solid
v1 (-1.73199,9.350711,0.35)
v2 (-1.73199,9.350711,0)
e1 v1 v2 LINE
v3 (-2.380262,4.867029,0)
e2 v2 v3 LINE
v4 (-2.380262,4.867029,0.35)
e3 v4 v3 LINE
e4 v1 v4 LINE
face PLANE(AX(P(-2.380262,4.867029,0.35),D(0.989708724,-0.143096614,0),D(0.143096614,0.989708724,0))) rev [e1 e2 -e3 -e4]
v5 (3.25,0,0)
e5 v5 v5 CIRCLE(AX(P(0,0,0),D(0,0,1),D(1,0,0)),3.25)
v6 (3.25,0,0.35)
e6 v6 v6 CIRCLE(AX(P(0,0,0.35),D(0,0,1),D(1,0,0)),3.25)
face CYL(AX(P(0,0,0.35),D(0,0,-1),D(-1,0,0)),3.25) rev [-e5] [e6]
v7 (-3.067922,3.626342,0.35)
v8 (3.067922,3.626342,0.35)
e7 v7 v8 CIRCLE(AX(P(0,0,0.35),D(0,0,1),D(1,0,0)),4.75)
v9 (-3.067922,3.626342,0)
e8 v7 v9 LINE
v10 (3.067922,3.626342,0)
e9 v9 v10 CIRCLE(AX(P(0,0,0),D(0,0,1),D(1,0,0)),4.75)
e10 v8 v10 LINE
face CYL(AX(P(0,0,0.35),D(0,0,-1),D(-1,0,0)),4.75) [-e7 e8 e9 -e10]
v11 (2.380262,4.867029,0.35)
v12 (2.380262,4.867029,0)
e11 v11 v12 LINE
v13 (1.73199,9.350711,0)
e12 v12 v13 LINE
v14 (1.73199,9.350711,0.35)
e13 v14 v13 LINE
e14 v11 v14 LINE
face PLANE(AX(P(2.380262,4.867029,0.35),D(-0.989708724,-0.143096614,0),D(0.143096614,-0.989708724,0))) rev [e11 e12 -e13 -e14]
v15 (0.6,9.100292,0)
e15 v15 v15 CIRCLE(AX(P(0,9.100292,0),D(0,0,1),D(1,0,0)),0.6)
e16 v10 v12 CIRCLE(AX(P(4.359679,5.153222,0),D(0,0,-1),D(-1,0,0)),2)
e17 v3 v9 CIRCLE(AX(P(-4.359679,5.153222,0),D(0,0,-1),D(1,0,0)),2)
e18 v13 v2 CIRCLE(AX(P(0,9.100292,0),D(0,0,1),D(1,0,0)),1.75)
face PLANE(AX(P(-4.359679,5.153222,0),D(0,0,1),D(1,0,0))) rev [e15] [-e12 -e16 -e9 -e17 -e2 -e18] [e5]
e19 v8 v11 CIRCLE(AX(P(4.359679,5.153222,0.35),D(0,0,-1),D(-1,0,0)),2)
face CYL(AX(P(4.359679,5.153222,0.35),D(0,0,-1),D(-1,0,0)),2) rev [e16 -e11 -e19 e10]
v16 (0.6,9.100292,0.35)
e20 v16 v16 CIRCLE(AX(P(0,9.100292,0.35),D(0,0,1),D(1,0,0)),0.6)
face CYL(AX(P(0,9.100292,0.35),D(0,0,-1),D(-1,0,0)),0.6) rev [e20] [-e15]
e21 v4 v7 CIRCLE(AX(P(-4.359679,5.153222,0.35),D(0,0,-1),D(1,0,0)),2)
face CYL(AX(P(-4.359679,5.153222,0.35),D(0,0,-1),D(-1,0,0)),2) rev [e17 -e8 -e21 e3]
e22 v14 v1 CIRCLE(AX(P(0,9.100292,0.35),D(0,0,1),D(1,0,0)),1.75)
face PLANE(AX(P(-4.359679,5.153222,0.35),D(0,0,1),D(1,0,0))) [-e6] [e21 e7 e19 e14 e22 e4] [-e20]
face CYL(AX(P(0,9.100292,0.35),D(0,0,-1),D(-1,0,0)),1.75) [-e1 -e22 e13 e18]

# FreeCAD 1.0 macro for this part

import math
import FreeCAD as App
import Part
import Sketcher
from FreeCAD import Vector
Q = App.Units.Quantity

doc = App.newDocument("Part")
params = doc.addObject("Spreadsheet::Sheet", "Params")
for row, (alias, value) in enumerate([
    ("sketch1_radius", "2 mm"),
    ("sketch1_diameter", "6.5 mm"),
    ("sketch1_diameter2", "1.2 mm"),
    ("sketch1_radius2", "1.75 mm"),
    ("sketch1_radius3", "4.75 mm"),
    ("pad1_length", "0.35 mm"),
], start=1):
    params.set(f"A{row}", alias)
    params.set(f"B{row}", "=" + value)
    params.setAlias(f"B{row}", alias)

body = doc.addObject("PartDesign::Body", "Body")

# Sketch on XY plane
sketch1 = body.newObject("Sketcher::SketchObject", "Sketch")
sketch1.AttachmentSupport = (doc.getObject("XY_Plane"), [""])
sketch1.MapMode = "FlatFace"
sketch1.addGeometry([
    Part.LineSegment(Vector(2.380262, 4.867029, 0), Vector(1.73199, 9.350711, 0)),  # 0
    Part.ArcOfCircle(Part.Circle(Vector(0, 9.100292, 0), Vector(0, 0, 1), 1.75), math.radians(8.227074), math.radians(171.772926)),  # 1
    Part.LineSegment(Vector(-1.73199, 9.350711, 0), Vector(-2.380262, 4.867029, 0)),  # 2
    Part.ArcOfCircle(Part.Circle(Vector(-4.359679, 5.153222, 0), Vector(0, 0, 1), 2), math.radians(-49.768436), math.radians(-8.227074)),  # 3
    Part.ArcOfCircle(Part.Circle(Vector(0, 0, 0), Vector(0, 0, 1), 4.75), math.radians(130.231564), math.radians(409.768436)),  # 4
    Part.ArcOfCircle(Part.Circle(Vector(4.359679, 5.153222, 0), Vector(0, 0, 1), 2), math.radians(-171.772926), math.radians(-130.231564)),  # 5
    Part.Circle(Vector(0, 0, 0), Vector(0, 0, 1), 3.25),  # 6
    Part.Circle(Vector(0, 9.100292, 0), Vector(0, 0, 1), 0.6),  # 7
], False)
sketch1.addConstraint([
    Sketcher.Constraint("Tangent", 0, 2, 1, 1),
    Sketcher.Constraint("Tangent", 1, 2, 2, 1),
    Sketcher.Constraint("Tangent", 2, 2, 3, 2),
    Sketcher.Constraint("Tangent", 3, 1, 4, 1),
    Sketcher.Constraint("Tangent", 4, 2, 5, 2),
    Sketcher.Constraint("Tangent", 5, 1, 0, 1),
    Sketcher.Constraint("Coincident", 4, 3, -1, 1),
    Sketcher.Constraint("Coincident", 6, 3, -1, 1),
    Sketcher.Constraint("Coincident", 7, 3, 1, 3),
    Sketcher.Constraint("Equal", 3, 5),
    Sketcher.Constraint("Symmetric", 0, 2, 1, 2, -2),
    Sketcher.Constraint("Radius", 3, Q("2 mm")),
    Sketcher.Constraint("Diameter", 6, Q("6.5 mm")),
    Sketcher.Constraint("Diameter", 7, Q("1.2 mm")),
    Sketcher.Constraint("Radius", 1, Q("1.75 mm")),
    Sketcher.Constraint("Radius", 4, Q("4.75 mm")),
    Sketcher.Constraint("DistanceY", -1, 1, 1, 3, Q("9.100292 mm")),
    Sketcher.Constraint("DistanceX", 3, 3, -1, 1, Q("4.359679 mm")),
])
sketch1.setExpression("Constraints[11]", "Params.sketch1_radius")
sketch1.setExpression("Constraints[12]", "Params.sketch1_diameter")
sketch1.setExpression("Constraints[13]", "Params.sketch1_diameter2")
sketch1.setExpression("Constraints[14]", "Params.sketch1_radius2")
sketch1.setExpression("Constraints[15]", "Params.sketch1_radius3")
pad1 = body.newObject("PartDesign::Pad", "Pad")
pad1.Profile = sketch1
pad1.setExpression("Length", "Params.pad1_length")

doc.recompute()
